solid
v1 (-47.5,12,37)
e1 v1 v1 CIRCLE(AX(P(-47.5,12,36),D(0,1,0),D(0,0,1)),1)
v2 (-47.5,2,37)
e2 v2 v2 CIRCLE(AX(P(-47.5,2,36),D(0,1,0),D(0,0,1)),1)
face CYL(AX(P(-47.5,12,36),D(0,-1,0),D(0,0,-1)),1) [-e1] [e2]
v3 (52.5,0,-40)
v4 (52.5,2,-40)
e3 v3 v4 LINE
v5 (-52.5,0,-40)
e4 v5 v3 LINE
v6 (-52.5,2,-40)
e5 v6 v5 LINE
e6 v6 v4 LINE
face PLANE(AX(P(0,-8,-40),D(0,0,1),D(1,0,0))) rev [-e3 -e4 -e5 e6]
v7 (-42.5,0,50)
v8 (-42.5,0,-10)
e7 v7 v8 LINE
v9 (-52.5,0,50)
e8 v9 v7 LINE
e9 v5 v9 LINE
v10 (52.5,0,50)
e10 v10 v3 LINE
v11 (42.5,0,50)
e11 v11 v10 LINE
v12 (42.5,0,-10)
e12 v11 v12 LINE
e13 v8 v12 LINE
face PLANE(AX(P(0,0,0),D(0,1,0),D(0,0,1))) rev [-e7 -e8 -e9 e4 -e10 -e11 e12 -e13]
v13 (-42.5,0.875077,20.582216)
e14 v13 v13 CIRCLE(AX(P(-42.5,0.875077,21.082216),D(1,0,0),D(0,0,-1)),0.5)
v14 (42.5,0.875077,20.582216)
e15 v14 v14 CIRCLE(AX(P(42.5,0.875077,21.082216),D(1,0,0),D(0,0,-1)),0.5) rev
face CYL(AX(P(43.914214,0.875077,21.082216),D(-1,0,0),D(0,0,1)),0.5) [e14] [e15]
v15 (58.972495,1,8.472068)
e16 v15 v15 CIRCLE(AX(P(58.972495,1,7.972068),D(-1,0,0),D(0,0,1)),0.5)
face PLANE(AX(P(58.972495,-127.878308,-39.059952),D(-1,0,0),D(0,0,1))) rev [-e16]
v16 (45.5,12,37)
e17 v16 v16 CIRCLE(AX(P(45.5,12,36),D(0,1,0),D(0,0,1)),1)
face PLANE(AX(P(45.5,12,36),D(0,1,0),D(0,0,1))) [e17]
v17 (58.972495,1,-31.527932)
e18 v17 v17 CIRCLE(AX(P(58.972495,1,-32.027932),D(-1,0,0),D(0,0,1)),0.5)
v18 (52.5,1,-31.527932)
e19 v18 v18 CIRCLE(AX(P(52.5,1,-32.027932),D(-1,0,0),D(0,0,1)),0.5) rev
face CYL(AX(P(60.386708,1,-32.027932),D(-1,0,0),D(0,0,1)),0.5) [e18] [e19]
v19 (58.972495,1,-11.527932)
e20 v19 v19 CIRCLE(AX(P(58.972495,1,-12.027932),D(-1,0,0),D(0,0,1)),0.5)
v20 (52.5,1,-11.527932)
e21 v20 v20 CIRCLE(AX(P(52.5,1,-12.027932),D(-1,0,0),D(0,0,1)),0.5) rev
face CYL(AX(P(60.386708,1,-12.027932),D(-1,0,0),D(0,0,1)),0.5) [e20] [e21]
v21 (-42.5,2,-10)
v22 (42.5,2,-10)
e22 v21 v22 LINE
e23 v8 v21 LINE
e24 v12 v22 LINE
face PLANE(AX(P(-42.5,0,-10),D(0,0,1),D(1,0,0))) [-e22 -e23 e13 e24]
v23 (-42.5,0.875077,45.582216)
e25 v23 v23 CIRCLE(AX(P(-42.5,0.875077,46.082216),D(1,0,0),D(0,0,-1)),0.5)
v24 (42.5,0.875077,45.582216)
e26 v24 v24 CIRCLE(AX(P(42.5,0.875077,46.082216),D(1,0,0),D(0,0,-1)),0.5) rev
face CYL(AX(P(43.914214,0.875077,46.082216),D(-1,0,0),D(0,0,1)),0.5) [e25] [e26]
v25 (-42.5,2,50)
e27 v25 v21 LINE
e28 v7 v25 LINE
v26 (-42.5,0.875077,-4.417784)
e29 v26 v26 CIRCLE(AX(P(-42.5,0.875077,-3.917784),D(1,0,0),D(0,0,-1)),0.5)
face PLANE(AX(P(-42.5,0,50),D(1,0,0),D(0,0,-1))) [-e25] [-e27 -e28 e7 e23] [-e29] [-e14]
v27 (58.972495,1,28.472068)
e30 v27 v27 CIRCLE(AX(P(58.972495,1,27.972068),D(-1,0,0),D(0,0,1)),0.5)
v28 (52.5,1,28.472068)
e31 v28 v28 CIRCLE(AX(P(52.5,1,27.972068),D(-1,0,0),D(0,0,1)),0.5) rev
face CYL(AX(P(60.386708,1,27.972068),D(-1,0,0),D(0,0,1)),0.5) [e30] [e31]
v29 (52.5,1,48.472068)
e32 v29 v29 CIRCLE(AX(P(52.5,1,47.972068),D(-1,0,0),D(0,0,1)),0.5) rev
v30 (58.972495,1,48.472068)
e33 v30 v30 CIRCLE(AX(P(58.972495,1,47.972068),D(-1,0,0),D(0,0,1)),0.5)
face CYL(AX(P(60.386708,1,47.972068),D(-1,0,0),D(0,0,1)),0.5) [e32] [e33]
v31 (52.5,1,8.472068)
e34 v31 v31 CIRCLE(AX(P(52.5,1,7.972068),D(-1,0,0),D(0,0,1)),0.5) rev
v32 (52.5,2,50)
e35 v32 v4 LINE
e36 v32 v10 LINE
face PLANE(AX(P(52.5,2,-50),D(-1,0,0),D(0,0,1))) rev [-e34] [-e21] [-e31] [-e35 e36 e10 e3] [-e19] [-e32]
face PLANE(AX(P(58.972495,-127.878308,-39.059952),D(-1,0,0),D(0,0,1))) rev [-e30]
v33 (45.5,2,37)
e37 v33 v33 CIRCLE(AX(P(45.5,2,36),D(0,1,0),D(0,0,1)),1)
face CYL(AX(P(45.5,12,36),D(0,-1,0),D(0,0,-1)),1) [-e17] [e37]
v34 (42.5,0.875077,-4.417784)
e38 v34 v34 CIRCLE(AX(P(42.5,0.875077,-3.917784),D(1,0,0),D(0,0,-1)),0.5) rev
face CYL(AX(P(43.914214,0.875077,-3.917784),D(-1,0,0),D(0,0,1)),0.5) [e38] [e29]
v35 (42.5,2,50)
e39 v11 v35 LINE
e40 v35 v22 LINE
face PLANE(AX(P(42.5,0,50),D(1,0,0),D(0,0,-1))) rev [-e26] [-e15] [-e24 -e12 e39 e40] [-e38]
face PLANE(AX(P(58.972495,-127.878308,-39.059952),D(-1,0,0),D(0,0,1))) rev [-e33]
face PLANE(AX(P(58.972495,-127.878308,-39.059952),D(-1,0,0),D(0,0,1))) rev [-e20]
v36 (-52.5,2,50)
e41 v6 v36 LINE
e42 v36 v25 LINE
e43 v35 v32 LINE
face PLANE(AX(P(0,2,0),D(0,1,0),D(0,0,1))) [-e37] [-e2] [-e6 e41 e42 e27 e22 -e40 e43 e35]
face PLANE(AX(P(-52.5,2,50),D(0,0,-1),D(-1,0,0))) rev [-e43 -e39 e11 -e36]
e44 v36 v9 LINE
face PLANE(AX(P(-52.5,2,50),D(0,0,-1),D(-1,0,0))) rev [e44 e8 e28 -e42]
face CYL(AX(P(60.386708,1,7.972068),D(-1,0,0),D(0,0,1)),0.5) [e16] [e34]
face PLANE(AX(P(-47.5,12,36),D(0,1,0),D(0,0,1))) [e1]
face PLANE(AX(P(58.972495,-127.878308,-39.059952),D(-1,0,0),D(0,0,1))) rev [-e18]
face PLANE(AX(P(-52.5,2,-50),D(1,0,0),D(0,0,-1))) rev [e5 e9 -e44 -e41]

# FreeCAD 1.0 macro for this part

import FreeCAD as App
import Part
import Sketcher

V = App.Vector
Q = App.Units.Quantity

doc = App.newDocument("Part")
body = doc.addObject("PartDesign::Body", "Body")

sketch1 = body.newObject("Sketcher::SketchObject", "Sketch")
sketch1.AttachmentSupport = (doc.getObject("XZ_Plane"), [""])
sketch1.MapMode = "FlatFace"
sketch1.addGeometry(Part.LineSegment(V(-52, -50, 0), V(-52, 50, 0)), False)
sketch1.addGeometry(Part.LineSegment(V(-52, 50, 0), V(52, 50, 0)), False)
sketch1.addGeometry(Part.LineSegment(V(52, 50, 0), V(52, -50, 0)), False)
sketch1.addGeometry(Part.LineSegment(V(52, -50, 0), V(-52, -50, 0)), False)
sketch1.addConstraint(Sketcher.Constraint("Coincident", 0, 2, 1, 1))
sketch1.addConstraint(Sketcher.Constraint("Coincident", 1, 2, 2, 1))
sketch1.addConstraint(Sketcher.Constraint("Coincident", 2, 2, 3, 1))
sketch1.addConstraint(Sketcher.Constraint("Coincident", 3, 2, 0, 1))
sketch1.addConstraint(Sketcher.Constraint("Vertical", 0))
sketch1.addConstraint(Sketcher.Constraint("Horizontal", 1))
sketch1.addConstraint(Sketcher.Constraint("Vertical", 2))
sketch1.addConstraint(Sketcher.Constraint("Horizontal", 3))
sketch1.addConstraint(Sketcher.Constraint("Symmetric", 0, 2, 2, 2, -1, 1))
sketch1.addConstraint(Sketcher.Constraint("DistanceX", 1, 1, 1, 2, Q("105 mm")))
sketch1.addConstraint(Sketcher.Constraint("DistanceY", 0, 1, 0, 2, Q("100 mm")))
pad1 = body.newObject("PartDesign::Pad", "Pad")
pad1.Profile = sketch1
pad1.Length = 2
pad1.Reversed = True

sketch2 = body.newObject("Sketcher::SketchObject", "Sketch001")
sketch2.AttachmentSupport = (doc.getObject("XZ_Plane"), [""])
sketch2.MapMode = "FlatFace"
sketch2.AttachmentOffset = App.Placement(V(0, 0, -2), App.Rotation())
sketch2.addGeometry(Part.LineSegment(V(-42, -10, 0), V(-42, 50, 0)), False)
sketch2.addGeometry(Part.LineSegment(V(-42, 50, 0), V(42, 50, 0)), False)
sketch2.addGeometry(Part.LineSegment(V(42, 50, 0), V(42, -10, 0)), False)
sketch2.addGeometry(Part.LineSegment(V(42, -10, 0), V(-42, -10, 0)), False)
sketch2.addConstraint(Sketcher.Constraint("Coincident", 0, 2, 1, 1))
sketch2.addConstraint(Sketcher.Constraint("Coincident", 1, 2, 2, 1))
sketch2.addConstraint(Sketcher.Constraint("Coincident", 2, 2, 3, 1))
sketch2.addConstraint(Sketcher.Constraint("Coincident", 3, 2, 0, 1))
sketch2.addConstraint(Sketcher.Constraint("Vertical", 0))
sketch2.addConstraint(Sketcher.Constraint("Horizontal", 1))
sketch2.addConstraint(Sketcher.Constraint("Vertical", 2))
sketch2.addConstraint(Sketcher.Constraint("Horizontal", 3))
sketch2.addConstraint(Sketcher.Constraint("DistanceX", 1, 1, 1, 2, Q("85 mm")))
sketch2.addConstraint(Sketcher.Constraint("DistanceY", 0, 1, 0, 2, Q("60 mm")))
sketch2.addConstraint(Sketcher.Constraint("DistanceY", -1, 1, 0, 2, Q("50 mm")))
sketch2.addConstraint(Sketcher.Constraint("DistanceX", 0, 2, -1, 1, Q("42.5 mm")))
pocket1 = body.newObject("PartDesign::Pocket", "Pocket")
pocket1.Profile = sketch2
pocket1.Length = 2
pocket1.Reversed = True

sketch3 = body.newObject("Sketcher::SketchObject", "Sketch002")
sketch3.AttachmentSupport = (doc.getObject("XZ_Plane"), [""])
sketch3.MapMode = "FlatFace"
sketch3.AttachmentOffset = App.Placement(V(0, 0, -2), App.Rotation())
sketch3.addGeometry(Part.Circle(V(45.5, 36, 0), V(0, 0, 1), 1), False)
sketch3.addGeometry(Part.Circle(V(-47.5, 36, 0), V(0, 0, 1), 1), False)
sketch3.addConstraint(Sketcher.Constraint("Equal", 0, 1))
sketch3.addConstraint(Sketcher.Constraint("Horizontal", 0, 3, 1, 3))
sketch3.addConstraint(Sketcher.Constraint("Diameter", 0, Q("2 mm")))
sketch3.addConstraint(Sketcher.Constraint("DistanceY", -1, 1, 0, 3, Q("36 mm")))
sketch3.addConstraint(Sketcher.Constraint("DistanceX", 1, 3, 0, 3, Q("93 mm")))
sketch3.addConstraint(Sketcher.Constraint("DistanceX", -1, 1, 0, 3, Q("45.5 mm")))
pad2 = body.newObject("PartDesign::Pad", "Pad001")
pad2.Profile = sketch3
pad2.Length = 10
pad2.Reversed = True

sketch4 = body.newObject("Sketcher::SketchObject", "Sketch003")
sketch4.AttachmentSupport = (doc.getObject("XZ_Plane"), [""])
sketch4.MapMode = "FlatFace"
sketch4.AttachmentOffset = App.Placement(V(0, 0, -2), App.Rotation())
sketch4.addGeometry(Part.LineSegment(V(-52, -50, 0), V(-52, -40, 0)), False)
sketch4.addGeometry(Part.LineSegment(V(-52, -40, 0), V(52, -40, 0)), False)
sketch4.addGeometry(Part.LineSegment(V(52, -40, 0), V(52, -50, 0)), False)
sketch4.addGeometry(Part.LineSegment(V(52, -50, 0), V(-52, -50, 0)), False)
sketch4.addConstraint(Sketcher.Constraint("Coincident", 0, 2, 1, 1))
sketch4.addConstraint(Sketcher.Constraint("Coincident", 1, 2, 2, 1))
sketch4.addConstraint(Sketcher.Constraint("Coincident", 2, 2, 3, 1))
sketch4.addConstraint(Sketcher.Constraint("Coincident", 3, 2, 0, 1))
sketch4.addConstraint(Sketcher.Constraint("Vertical", 0))
sketch4.addConstraint(Sketcher.Constraint("Horizontal", 1))
sketch4.addConstraint(Sketcher.Constraint("Vertical", 2))
sketch4.addConstraint(Sketcher.Constraint("Horizontal", 3))
sketch4.addConstraint(Sketcher.Constraint("DistanceX", 1, 1, 1, 2, Q("105 mm")))
sketch4.addConstraint(Sketcher.Constraint("DistanceY", 0, 1, 0, 2, Q("10 mm")))
sketch4.addConstraint(Sketcher.Constraint("DistanceY", 0, 2, -1, 1, Q("40 mm")))
sketch4.addConstraint(Sketcher.Constraint("DistanceX", 0, 2, -1, 1, Q("52.5 mm")))
pocket2 = body.newObject("PartDesign::Pocket", "Pocket001")
pocket2.Profile = sketch4
pocket2.Length = 10
pocket2.Reversed = True

sketch5 = body.newObject("Sketcher::SketchObject", "Sketch004")
sketch5.AttachmentSupport = (doc.getObject("YZ_Plane"), [""])
sketch5.MapMode = "FlatFace"
sketch5.AttachmentOffset = App.Placement(V(0, 0, 52.5), App.Rotation())
sketch5.addGeometry(Part.Circle(V(1, 48, 0), V(0, 0, 1), 0.5), False)
sketch5.addGeometry(Part.Circle(V(1, 28, 0), V(0, 0, 1), 0.5), False)
sketch5.addGeometry(Part.Circle(V(1, 8, 0), V(0, 0, 1), 0.5), False)
sketch5.addGeometry(Part.Circle(V(1, -12, 0), V(0, 0, 1), 0.5), False)
sketch5.addGeometry(Part.Circle(V(1, -32, 0), V(0, 0, 1), 0.5), False)
sketch5.addConstraint(Sketcher.Constraint("Equal", 0, 1))
sketch5.addConstraint(Sketcher.Constraint("Equal", 1, 2))
sketch5.addConstraint(Sketcher.Constraint("Equal", 2, 3))
sketch5.addConstraint(Sketcher.Constraint("Equal", 3, 4))
sketch5.addConstraint(Sketcher.Constraint("Vertical", 0, 3, 1, 3))
sketch5.addConstraint(Sketcher.Constraint("Vertical", 1, 3, 2, 3))
sketch5.addConstraint(Sketcher.Constraint("Vertical", 2, 3, 3, 3))
sketch5.addConstraint(Sketcher.Constraint("Vertical", 3, 3, 4, 3))
sketch5.addConstraint(Sketcher.Constraint("Diameter", 0, Q("1 mm")))
sketch5.addConstraint(Sketcher.Constraint("DistanceX", -1, 1, 0, 3, Q("1 mm")))
sketch5.addConstraint(Sketcher.Constraint("DistanceY", 1, 3, 0, 3, Q("20 mm")))
sketch5.addConstraint(Sketcher.Constraint("DistanceY", 2, 3, 1, 3, Q("20 mm")))
sketch5.addConstraint(Sketcher.Constraint("DistanceY", 3, 3, 2, 3, Q("20 mm")))
sketch5.addConstraint(Sketcher.Constraint("DistanceY", 4, 3, 3, 3, Q("20 mm")))
sketch5.addConstraint(Sketcher.Constraint("DistanceY", -1, 1, 0, 3, Q("47.972068 mm")))
pad3 = body.newObject("PartDesign::Pad", "Pad002")
pad3.Profile = sketch5
pad3.Length = 6.472495

sketch6 = body.newObject("Sketcher::SketchObject", "Sketch005")
sketch6.AttachmentSupport = (doc.getObject("YZ_Plane"), [""])
sketch6.MapMode = "FlatFace"
sketch6.AttachmentOffset = App.Placement(V(0, 0, -42.5), App.Rotation())
sketch6.addGeometry(Part.Circle(V(0.9, 46.1, 0), V(0, 0, 1), 0.5), False)
sketch6.addGeometry(Part.Circle(V(0.9, 21.1, 0), V(0, 0, 1), 0.5), False)
sketch6.addGeometry(Part.Circle(V(0.9, -3.9, 0), V(0, 0, 1), 0.5), False)
sketch6.addConstraint(Sketcher.Constraint("Equal", 0, 1))
sketch6.addConstraint(Sketcher.Constraint("Equal", 1, 2))
sketch6.addConstraint(Sketcher.Constraint("Vertical", 0, 3, 1, 3))
sketch6.addConstraint(Sketcher.Constraint("Vertical", 1, 3, 2, 3))
sketch6.addConstraint(Sketcher.Constraint("Diameter", 0, Q("1 mm")))
sketch6.addConstraint(Sketcher.Constraint("DistanceY", 1, 3, 0, 3, Q("25 mm")))
sketch6.addConstraint(Sketcher.Constraint("DistanceY", 2, 3, 1, 3, Q("25 mm")))
sketch6.addConstraint(Sketcher.Constraint("DistanceX", -1, 1, 0, 3, Q("0.875077 mm")))
sketch6.addConstraint(Sketcher.Constraint("DistanceY", -1, 1, 0, 3, Q("46.082216 mm")))
pad4 = body.newObject("PartDesign::Pad", "Pad003")
pad4.Profile = sketch6
pad4.Length = 85

doc.recompute()
